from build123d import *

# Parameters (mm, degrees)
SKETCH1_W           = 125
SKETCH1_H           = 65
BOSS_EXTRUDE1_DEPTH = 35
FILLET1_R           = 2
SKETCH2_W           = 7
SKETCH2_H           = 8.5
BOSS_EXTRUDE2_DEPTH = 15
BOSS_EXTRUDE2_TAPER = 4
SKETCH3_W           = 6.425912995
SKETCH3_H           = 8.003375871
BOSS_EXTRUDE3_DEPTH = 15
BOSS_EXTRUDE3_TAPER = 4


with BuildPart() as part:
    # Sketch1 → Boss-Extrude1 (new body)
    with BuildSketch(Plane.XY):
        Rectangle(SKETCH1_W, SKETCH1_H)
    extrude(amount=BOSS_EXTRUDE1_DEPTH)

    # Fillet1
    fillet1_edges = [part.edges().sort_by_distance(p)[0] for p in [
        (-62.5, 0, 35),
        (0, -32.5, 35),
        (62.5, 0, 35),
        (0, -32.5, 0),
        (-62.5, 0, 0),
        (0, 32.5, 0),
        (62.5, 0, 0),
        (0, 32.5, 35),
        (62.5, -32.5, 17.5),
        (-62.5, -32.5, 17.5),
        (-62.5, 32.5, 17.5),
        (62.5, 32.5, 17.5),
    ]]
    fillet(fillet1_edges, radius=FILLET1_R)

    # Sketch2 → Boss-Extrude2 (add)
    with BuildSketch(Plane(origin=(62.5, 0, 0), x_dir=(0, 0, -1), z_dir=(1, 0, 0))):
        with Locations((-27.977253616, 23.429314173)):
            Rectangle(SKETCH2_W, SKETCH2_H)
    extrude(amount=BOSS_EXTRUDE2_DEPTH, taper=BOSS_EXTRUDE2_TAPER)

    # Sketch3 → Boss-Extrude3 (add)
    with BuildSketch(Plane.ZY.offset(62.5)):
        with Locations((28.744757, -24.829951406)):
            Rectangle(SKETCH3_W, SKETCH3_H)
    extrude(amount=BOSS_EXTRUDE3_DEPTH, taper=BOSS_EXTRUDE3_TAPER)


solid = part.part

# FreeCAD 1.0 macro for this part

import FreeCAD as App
import Part
import Sketcher

V = App.Vector
Q = App.Units.Quantity

doc = App.newDocument("Part")
body = doc.addObject("PartDesign::Body", "Body")

# Sketch on XY plane
sketch1 = doc.addObject("Sketcher::SketchObject", "Sketch")
body.addObject(sketch1)
sketch1.AttachmentSupport = (doc.XY_Plane, [""])
sketch1.MapMode = "FlatFace"
sketch1.addGeometry([
    Part.LineSegment(V(-62, 32, 0), V(-62, -32, 0)),
    Part.LineSegment(V(-62, -32, 0), V(62, -32, 0)),
    Part.LineSegment(V(62, -32, 0), V(62, 32, 0)),
    Part.LineSegment(V(62, 32, 0), V(-62, 32, 0)),
], False)
sketch1.addConstraint([
    Sketcher.Constraint("Coincident", 0, 2, 1, 1),
    Sketcher.Constraint("Coincident", 1, 2, 2, 1),
    Sketcher.Constraint("Coincident", 2, 2, 3, 1),
    Sketcher.Constraint("Coincident", 3, 2, 0, 1),
    Sketcher.Constraint("Vertical", 0),
    Sketcher.Constraint("Horizontal", 1),
    Sketcher.Constraint("Vertical", 2),
    Sketcher.Constraint("Horizontal", 3),
    Sketcher.Constraint("Symmetric", 0, 2, 2, 2, -1, 1),
    Sketcher.Constraint("DistanceX", 1, 1, 1, 2, Q("125 mm")),
    Sketcher.Constraint("DistanceY", 0, 2, 0, 1, Q("65 mm")),
])
pad1 = doc.addObject("PartDesign::Pad", "Pad")
body.addObject(pad1)
pad1.Profile = sketch1
pad1.Length = 35
doc.recompute()

fillet = doc.addObject("PartDesign::Fillet", "Fillet")
body.addObject(fillet)
fillet.Base = (pad1, ["Edge1"])
fillet.UseAllEdges = True
fillet.Radius = 2

# Sketch on YZ plane
sketch2 = doc.addObject("Sketcher::SketchObject", "Sketch001")
body.addObject(sketch2)
sketch2.AttachmentSupport = (doc.YZ_Plane, [""])
sketch2.MapMode = "FlatFace"
sketch2.AttachmentOffset = App.Placement(V(0, 0, 62.5), App.Rotation())
sketch2.addGeometry([
    Part.LineSegment(V(28, 31, 0), V(19, 31, 0)),
    Part.LineSegment(V(19, 31, 0), V(19, 24, 0)),
    Part.LineSegment(V(19, 24, 0), V(28, 24, 0)),
    Part.LineSegment(V(28, 24, 0), V(28, 31, 0)),
], False)
sketch2.addConstraint([
    Sketcher.Constraint("Coincident", 0, 2, 1, 1),
    Sketcher.Constraint("Coincident", 1, 2, 2, 1),
    Sketcher.Constraint("Coincident", 2, 2, 3, 1),
    Sketcher.Constraint("Coincident", 3, 2, 0, 1),
    Sketcher.Constraint("Horizontal", 0),
    Sketcher.Constraint("Vertical", 1),
    Sketcher.Constraint("Horizontal", 2),
    Sketcher.Constraint("Vertical", 3),
    Sketcher.Constraint("DistanceY", 1, 2, 1, 1, Q("7 mm")),
    Sketcher.Constraint("DistanceX", 0, 2, 0, 1, Q("8.5 mm")),
    Sketcher.Constraint("DistanceX", -1, 1, 0, 2, Q("19.179314 mm")),
    Sketcher.Constraint("DistanceY", -1, 1, 0, 2, Q("31.477254 mm")),
])
pad2 = doc.addObject("PartDesign::Pad", "Pad001")
body.addObject(pad2)
pad2.Profile = sketch2
pad2.Length = 15
pad2.TaperAngle = -4

# Sketch on YZ plane
sketch3 = doc.addObject("Sketcher::SketchObject", "Sketch002")
body.addObject(sketch3)
sketch3.AttachmentSupport = (doc.YZ_Plane, [""])
sketch3.MapMode = "FlatFace"
sketch3.AttachmentOffset = App.Placement(V(0, 0, -62.5), App.Rotation())
sketch3.addGeometry([
    Part.LineSegment(V(-21, 26, 0), V(-29, 26, 0)),
    Part.LineSegment(V(-29, 26, 0), V(-29, 32, 0)),
    Part.LineSegment(V(-29, 32, 0), V(-21, 32, 0)),
    Part.LineSegment(V(-21, 32, 0), V(-21, 26, 0)),
], False)
sketch3.addConstraint([
    Sketcher.Constraint("Coincident", 0, 2, 1, 1),
    Sketcher.Constraint("Coincident", 1, 2, 2, 1),
    Sketcher.Constraint("Coincident", 2, 2, 3, 1),
    Sketcher.Constraint("Coincident", 3, 2, 0, 1),
    Sketcher.Constraint("Horizontal", 0),
    Sketcher.Constraint("Vertical", 1),
    Sketcher.Constraint("Horizontal", 2),
    Sketcher.Constraint("Vertical", 3),
    Sketcher.Constraint("DistanceY", -1, 1, 0, 2, Q("25.531801 mm")),
    Sketcher.Constraint("DistanceX", 0, 2, 0, 1, Q("8.003376 mm")),
    Sketcher.Constraint("DistanceY", 1, 1, 1, 2, Q("6.425913 mm")),
    Sketcher.Constraint("DistanceX", 0, 2, -1, 1, Q("28.831639 mm")),
])
pad3 = doc.addObject("PartDesign::Pad", "Pad002")
body.addObject(pad3)
pad3.Profile = sketch3
pad3.Length = 15
pad3.Reversed = True
pad3.TaperAngle = -4

doc.recompute()
